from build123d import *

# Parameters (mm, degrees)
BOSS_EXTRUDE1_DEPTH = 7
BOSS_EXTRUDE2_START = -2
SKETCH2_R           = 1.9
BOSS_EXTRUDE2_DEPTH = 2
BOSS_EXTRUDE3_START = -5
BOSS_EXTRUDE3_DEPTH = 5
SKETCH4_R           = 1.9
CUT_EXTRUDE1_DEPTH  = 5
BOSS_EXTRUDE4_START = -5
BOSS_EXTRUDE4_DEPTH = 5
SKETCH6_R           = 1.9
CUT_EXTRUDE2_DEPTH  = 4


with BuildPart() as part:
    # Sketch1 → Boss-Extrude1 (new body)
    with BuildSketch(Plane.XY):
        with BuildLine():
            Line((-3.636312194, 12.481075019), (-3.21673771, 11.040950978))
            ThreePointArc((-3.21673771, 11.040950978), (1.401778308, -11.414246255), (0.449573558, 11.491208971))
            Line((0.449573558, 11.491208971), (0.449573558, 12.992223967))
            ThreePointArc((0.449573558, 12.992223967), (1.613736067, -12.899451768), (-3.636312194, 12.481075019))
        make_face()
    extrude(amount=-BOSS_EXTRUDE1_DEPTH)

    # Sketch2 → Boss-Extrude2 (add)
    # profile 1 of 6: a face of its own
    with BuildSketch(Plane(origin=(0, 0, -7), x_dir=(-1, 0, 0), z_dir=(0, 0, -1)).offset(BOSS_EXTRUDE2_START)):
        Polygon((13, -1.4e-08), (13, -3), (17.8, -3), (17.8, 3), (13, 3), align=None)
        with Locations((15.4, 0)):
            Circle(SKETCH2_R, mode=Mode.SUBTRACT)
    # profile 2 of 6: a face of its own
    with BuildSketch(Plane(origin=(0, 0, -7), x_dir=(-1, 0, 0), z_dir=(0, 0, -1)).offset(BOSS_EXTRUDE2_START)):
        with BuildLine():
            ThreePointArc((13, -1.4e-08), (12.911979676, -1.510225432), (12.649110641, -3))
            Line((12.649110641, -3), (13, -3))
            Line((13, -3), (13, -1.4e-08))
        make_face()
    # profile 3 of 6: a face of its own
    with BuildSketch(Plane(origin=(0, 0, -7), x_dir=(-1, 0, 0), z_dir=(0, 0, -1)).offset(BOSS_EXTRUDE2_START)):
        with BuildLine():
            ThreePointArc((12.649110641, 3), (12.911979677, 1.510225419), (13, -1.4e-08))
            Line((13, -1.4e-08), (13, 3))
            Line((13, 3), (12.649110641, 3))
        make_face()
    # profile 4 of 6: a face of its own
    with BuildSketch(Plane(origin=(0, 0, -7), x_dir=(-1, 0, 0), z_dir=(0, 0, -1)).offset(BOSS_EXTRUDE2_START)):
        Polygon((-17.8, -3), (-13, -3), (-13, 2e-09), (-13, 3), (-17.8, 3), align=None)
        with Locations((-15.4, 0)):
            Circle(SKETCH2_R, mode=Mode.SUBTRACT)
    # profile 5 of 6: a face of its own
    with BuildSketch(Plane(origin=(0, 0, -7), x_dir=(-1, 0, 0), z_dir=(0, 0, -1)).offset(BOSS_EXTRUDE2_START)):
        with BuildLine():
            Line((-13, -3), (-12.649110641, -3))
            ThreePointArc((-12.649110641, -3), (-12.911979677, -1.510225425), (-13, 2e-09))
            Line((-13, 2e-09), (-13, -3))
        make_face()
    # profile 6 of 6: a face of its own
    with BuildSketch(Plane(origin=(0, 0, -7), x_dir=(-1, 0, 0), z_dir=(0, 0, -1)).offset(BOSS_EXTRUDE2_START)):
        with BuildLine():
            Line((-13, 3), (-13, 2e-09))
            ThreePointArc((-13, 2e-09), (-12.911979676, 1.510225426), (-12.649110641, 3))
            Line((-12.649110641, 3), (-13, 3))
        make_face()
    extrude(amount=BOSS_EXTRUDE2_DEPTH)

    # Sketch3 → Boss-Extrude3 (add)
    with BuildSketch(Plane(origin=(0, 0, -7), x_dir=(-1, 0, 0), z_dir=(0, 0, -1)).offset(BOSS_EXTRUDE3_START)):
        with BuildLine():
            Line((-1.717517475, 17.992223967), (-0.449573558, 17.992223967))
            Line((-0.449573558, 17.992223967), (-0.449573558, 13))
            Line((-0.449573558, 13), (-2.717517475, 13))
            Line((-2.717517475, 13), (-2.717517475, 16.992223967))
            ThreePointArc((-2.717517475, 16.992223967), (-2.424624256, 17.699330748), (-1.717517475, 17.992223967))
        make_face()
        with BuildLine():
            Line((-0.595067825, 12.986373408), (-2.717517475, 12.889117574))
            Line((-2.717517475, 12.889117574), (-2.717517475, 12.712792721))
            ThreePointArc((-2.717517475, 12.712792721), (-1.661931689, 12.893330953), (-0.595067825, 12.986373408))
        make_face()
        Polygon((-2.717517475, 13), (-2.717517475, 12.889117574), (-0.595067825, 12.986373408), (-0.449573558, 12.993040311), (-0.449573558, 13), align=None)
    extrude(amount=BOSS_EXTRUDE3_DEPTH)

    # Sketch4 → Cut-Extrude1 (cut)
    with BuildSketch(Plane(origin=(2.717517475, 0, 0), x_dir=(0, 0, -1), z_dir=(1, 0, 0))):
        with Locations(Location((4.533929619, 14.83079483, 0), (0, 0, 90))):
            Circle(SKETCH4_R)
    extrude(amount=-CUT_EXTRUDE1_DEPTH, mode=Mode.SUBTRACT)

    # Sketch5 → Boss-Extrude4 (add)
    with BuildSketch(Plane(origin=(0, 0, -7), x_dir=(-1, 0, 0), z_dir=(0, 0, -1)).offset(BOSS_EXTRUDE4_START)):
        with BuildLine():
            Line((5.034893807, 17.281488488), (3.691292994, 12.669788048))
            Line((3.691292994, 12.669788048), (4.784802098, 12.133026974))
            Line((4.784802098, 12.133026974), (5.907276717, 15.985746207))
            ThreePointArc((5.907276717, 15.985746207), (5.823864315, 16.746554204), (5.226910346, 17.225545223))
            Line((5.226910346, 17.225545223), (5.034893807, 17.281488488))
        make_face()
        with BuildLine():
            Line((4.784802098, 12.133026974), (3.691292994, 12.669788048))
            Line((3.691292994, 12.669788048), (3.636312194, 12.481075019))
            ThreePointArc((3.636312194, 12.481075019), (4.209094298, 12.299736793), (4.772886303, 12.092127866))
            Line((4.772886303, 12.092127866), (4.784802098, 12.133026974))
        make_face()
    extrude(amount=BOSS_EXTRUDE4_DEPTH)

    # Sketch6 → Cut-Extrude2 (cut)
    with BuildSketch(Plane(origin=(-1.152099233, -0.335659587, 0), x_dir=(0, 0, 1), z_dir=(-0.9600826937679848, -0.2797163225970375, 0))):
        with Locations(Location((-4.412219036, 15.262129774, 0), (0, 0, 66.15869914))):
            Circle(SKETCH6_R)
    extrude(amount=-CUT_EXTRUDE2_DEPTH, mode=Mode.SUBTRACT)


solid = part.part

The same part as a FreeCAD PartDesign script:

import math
import FreeCAD as App
import Part
import Sketcher

V = App.Vector

doc = App.newDocument("Part")
body = doc.addObject("PartDesign::Body", "Body")

# Sketch on XY plane
sketch1 = body.newObject("Sketcher::SketchObject", "Sketch")
sketch1.AttachmentSupport = (doc.getObject("XY_Plane"), [""])
sketch1.MapMode = "FlatFace"
sketch1.addGeometry(Part.LineSegment(V(-3.216738, 11.040951, 0), V(-3.636312, 12.481075, 0)), False)
sketch1.addGeometry(Part.ArcOfCircle(Part.Circle(V(0, 0, 0), V(0, 0, 1), 13), math.radians(106.243275), math.radians(448.018169)), False)
sketch1.addGeometry(Part.LineSegment(V(0.449574, 12.992224, 0), V(0.449574, 11.491209, 0)), False)
sketch1.addGeometry(Part.ArcOfCircle(Part.Circle(V(0, 0, 0), V(0, 0, 1), 11.5), math.radians(106.243275), math.radians(447.759545)), False)
sketch1.addConstraint(Sketcher.Constraint("Coincident", 0, 2, 1, 1))
sketch1.addConstraint(Sketcher.Constraint("Coincident", 1, 2, 2, 1))
sketch1.addConstraint(Sketcher.Constraint("Coincident", 2, 2, 3, 2))
sketch1.addConstraint(Sketcher.Constraint("Coincident", 3, 1, 0, 1))
sketch1.addConstraint(Sketcher.Constraint("Vertical", 2))
sketch1.addConstraint(Sketcher.Constraint("Coincident", 1, 3, -1, 1))
sketch1.addConstraint(Sketcher.Constraint("Coincident", 3, 3, -1, 1))
sketch1.addConstraint(Sketcher.Constraint("Radius", 1, 13.0))
sketch1.addConstraint(Sketcher.Constraint("Radius", 3, 11.5))
sketch1.addConstraint(Sketcher.Constraint("DistanceY", 2, 2, 2, 1, 1.501015))
sketch1.addConstraint(Sketcher.Constraint("DistanceY", -1, 1, 3, 1, 11.040951))
sketch1.addConstraint(Sketcher.Constraint("DistanceY", 0, 2, 1, 2, 0.511149))
pad1 = body.newObject("PartDesign::Pad", "Pad")
pad1.Profile = sketch1
pad1.Length = 7
pad1.Reversed = True

# Sketch on XY plane
sketch2 = body.newObject("Sketcher::SketchObject", "Sketch001")
sketch2.AttachmentSupport = (doc.getObject("XY_Plane"), [""])
sketch2.MapMode = "FlatFace"
sketch2.AttachmentOffset = App.Placement(V(0, 0, -5), App.Rotation())
sketch2.addGeometry(Part.LineSegment(V(-17.8, -3, 0), V(-17.8, 3, 0)), False)
sketch2.addGeometry(Part.LineSegment(V(-17.8, 3, 0), V(-12.649111, 3, 0)), False)
sketch2.addGeometry(Part.ArcOfCircle(Part.Circle(V(0, 0, 0), V(0, 0, 1), 13), math.radians(166.657636), math.radians(180)), False)
sketch2.addGeometry(Part.ArcOfCircle(Part.Circle(V(0, 0, 0), V(0, 0, 1), 13), math.radians(-180), math.radians(-166.657636)), False)
sketch2.addGeometry(Part.LineSegment(V(-12.649111, -3, 0), V(-17.8, -3, 0)), False)
sketch2.addGeometry(Part.Circle(V(-15.4, 0, 0), V(0, 0, 1), 1.9), False)
sketch2.addGeometry(Part.LineSegment(V(17.8, -3, 0), V(12.649111, -3, 0)), False)
sketch2.addGeometry(Part.ArcOfCircle(Part.Circle(V(0, 0, 0), V(0, 0, 1), 13), math.radians(-13.342364), math.radians(0)), False)
sketch2.addGeometry(Part.ArcOfCircle(Part.Circle(V(0, 0, 0), V(0, 0, 1), 13), math.radians(0), math.radians(13.342364)), False)
sketch2.addGeometry(Part.LineSegment(V(12.649111, 3, 0), V(17.8, 3, 0)), False)
sketch2.addGeometry(Part.LineSegment(V(17.8, 3, 0), V(17.8, -3, 0)), False)
sketch2.addGeometry(Part.Circle(V(15.4, 0, 0), V(0, 0, 1), 1.9), False)
sketch2.addConstraint(Sketcher.Constraint("Coincident", 0, 2, 1, 1))
sketch2.addConstraint(Sketcher.Constraint("Coincident", 1, 2, 2, 1))
sketch2.addConstraint(Sketcher.Constraint("Tangent", 2, 2, 3, 1))
sketch2.addConstraint(Sketcher.Constraint("Coincident", 3, 2, 4, 1))
sketch2.addConstraint(Sketcher.Constraint("Coincident", 4, 2, 0, 1))
sketch2.addConstraint(Sketcher.Constraint("Coincident", 6, 2, 7, 1))
sketch2.addConstraint(Sketcher.Constraint("Tangent", 7, 2, 8, 1))
sketch2.addConstraint(Sketcher.Constraint("Coincident", 8, 2, 9, 1))
sketch2.addConstraint(Sketcher.Constraint("Coincident", 9, 2, 10, 1))
sketch2.addConstraint(Sketcher.Constraint("Coincident", 10, 2, 6, 1))
sketch2.addConstraint(Sketcher.Constraint("Vertical", 0))
sketch2.addConstraint(Sketcher.Constraint("Horizontal", 1))
sketch2.addConstraint(Sketcher.Constraint("Horizontal", 4))
sketch2.addConstraint(Sketcher.Constraint("Horizontal", 6))
sketch2.addConstraint(Sketcher.Constraint("Horizontal", 9))
sketch2.addConstraint(Sketcher.Constraint("Vertical", 10))
sketch2.addConstraint(Sketcher.Constraint("Coincident", 2, 3, -1, 1))
sketch2.addConstraint(Sketcher.Constraint("Coincident", 7, 3, -1, 1))
sketch2.addConstraint(Sketcher.Constraint("Equal", 2, 3))
sketch2.addConstraint(Sketcher.Constraint("Equal", 3, 7))
sketch2.addConstraint(Sketcher.Constraint("Equal", 7, 8))
sketch2.addConstraint(Sketcher.Constraint("Equal", 5, 11))
sketch2.addConstraint(Sketcher.Constraint("Symmetric", 5, 3, 11, 3, -1, 1))
sketch2.addConstraint(Sketcher.Constraint("Symmetric", 4, 2, 9, 2, -1, 1))
sketch2.addConstraint(Sketcher.Constraint("PointOnObject", 5, 3, -1))
sketch2.addConstraint(Sketcher.Constraint("PointOnObject", 2, 2, -1))
sketch2.addConstraint(Sketcher.Constraint("PointOnObject", 7, 2, -1))
sketch2.addConstraint(Sketcher.Constraint("Horizontal", 4, 2, 6, 2))
sketch2.addConstraint(Sketcher.Constraint("Horizontal", 1, 2, 8, 2))
sketch2.addConstraint(Sketcher.Constraint("Radius", 2, 13.0))
sketch2.addConstraint(Sketcher.Constraint("Diameter", 5, 3.8))
sketch2.addConstraint(Sketcher.Constraint("DistanceY", 0, 1, 0, 2, 6.0))
sketch2.addConstraint(Sketcher.Constraint("DistanceX", 5, 3, -1, 1, 15.4))
sketch2.addConstraint(Sketcher.Constraint("DistanceX", 0, 2, -1, 1, 17.8))
pad2 = body.newObject("PartDesign::Pad", "Pad001")
pad2.Profile = sketch2
pad2.Length = 2
pad2.Reversed = True

# Sketch on XY plane
sketch3 = body.newObject("Sketcher::SketchObject", "Sketch002")
sketch3.AttachmentSupport = (doc.getObject("XY_Plane"), [""])
sketch3.MapMode = "FlatFace"
sketch3.AttachmentOffset = App.Placement(V(0, 0, -2), App.Rotation())
sketch3.addGeometry(Part.LineSegment(V(0.449574, 17.992224, 0), V(1.717517, 17.992224, 0)), False)
sketch3.addGeometry(Part.ArcOfCircle(Part.Circle(V(1.717517, 16.992224, 0), V(0, 0, 1), 1), math.radians(0), math.radians(90)), False)
sketch3.addGeometry(Part.LineSegment(V(2.717517, 16.992224, 0), V(2.717517, 12.712793, 0)), False)
sketch3.addGeometry(Part.ArcOfCircle(Part.Circle(V(0, 0, 0), V(0, 0, 1), 13), math.radians(77.933912), math.radians(87.376401)), False)
sketch3.addGeometry(Part.LineSegment(V(0.595068, 12.986373, 0), V(0.449574, 12.99304, 0)), False)
sketch3.addGeometry(Part.LineSegment(V(0.449574, 12.99304, 0), V(0.449574, 17.992224, 0)), False)
sketch3.addConstraint(Sketcher.Constraint("Coincident", 0, 2, 1, 2))
sketch3.addConstraint(Sketcher.Constraint("Coincident", 1, 1, 2, 1))
sketch3.addConstraint(Sketcher.Constraint("Coincident", 2, 2, 3, 1))
sketch3.addConstraint(Sketcher.Constraint("Coincident", 3, 2, 4, 1))
sketch3.addConstraint(Sketcher.Constraint("Coincident", 4, 2, 5, 1))
sketch3.addConstraint(Sketcher.Constraint("Coincident", 5, 2, 0, 1))
sketch3.addConstraint(Sketcher.Constraint("Horizontal", 0))
sketch3.addConstraint(Sketcher.Constraint("Vertical", 2))
sketch3.addConstraint(Sketcher.Constraint("Vertical", 5))
sketch3.addConstraint(Sketcher.Constraint("Coincident", 3, 3, -1, 1))
sketch3.addConstraint(Sketcher.Constraint("Radius", 1, 1.0))
sketch3.addConstraint(Sketcher.Constraint("Radius", 3, 13.0))
sketch3.addConstraint(Sketcher.Constraint("DistanceX", 0, 2, 1, 1, 1.0))
sketch3.addConstraint(Sketcher.Constraint("DistanceY", 1, 1, 0, 2, 1.0))
sketch3.addConstraint(Sketcher.Constraint("DistanceY", 2, 2, 2, 1, 4.279431))
sketch3.addConstraint(Sketcher.Constraint("DistanceX", 0, 1, 0, 2, 1.267944))
sketch3.addConstraint(Sketcher.Constraint("DistanceY", 5, 1, 5, 2, 4.999184))
sketch3.addConstraint(Sketcher.Constraint("DistanceY", -1, 1, 4, 2, 12.99304))
sketch3.addConstraint(Sketcher.Constraint("DistanceX", 3, 2, 2, 2, 2.12245))
pad3 = body.newObject("PartDesign::Pad", "Pad002")
pad3.Profile = sketch3
pad3.Length = 5
pad3.Reversed = True

# Sketch on YZ plane
sketch4 = body.newObject("Sketcher::SketchObject", "Sketch003")
sketch4.AttachmentSupport = (doc.getObject("YZ_Plane"), [""])
sketch4.MapMode = "FlatFace"
sketch4.AttachmentOffset = App.Placement(V(0, 0, 2.717517), App.Rotation())
sketch4.addGeometry(Part.Circle(V(14.830795, -4.53393, 0), V(0, 0, 1), 1.9), False)
sketch4.addConstraint(Sketcher.Constraint("Diameter", 0, 3.8))
sketch4.addConstraint(Sketcher.Constraint("DistanceY", 0, 3, -1, 1, 4.53393))
sketch4.addConstraint(Sketcher.Constraint("DistanceX", -1, 1, 0, 3, 14.830795))
pocket1 = body.newObject("PartDesign::Pocket", "Pocket")
pocket1.Profile = sketch4
pocket1.Length = 5

# Sketch on XY plane
sketch5 = body.newObject("Sketcher::SketchObject", "Sketch004")
sketch5.AttachmentSupport = (doc.getObject("XY_Plane"), [""])
sketch5.MapMode = "FlatFace"
sketch5.AttachmentOffset = App.Placement(V(0, 0, -2), App.Rotation())
sketch5.addGeometry(Part.LineSegment(V(-5.034894, 17.281488, 0), V(-3.691293, 12.669788, 0)), False)
sketch5.addGeometry(Part.LineSegment(V(-3.691293, 12.669788, 0), V(-3.636312, 12.481075, 0)), False)
sketch5.addGeometry(Part.ArcOfCircle(Part.Circle(V(0, 0, 0), V(0, 0, 1), 13), math.radians(106.243275), math.radians(111.539656)), False)
sketch5.addGeometry(Part.LineSegment(V(-4.772886, 12.092128, 0), V(-4.784802, 12.133027, 0)), False)
sketch5.addGeometry(Part.LineSegment(V(-4.784802, 12.133027, 0), V(-5.907277, 15.985746, 0)), False)
sketch5.addGeometry(Part.ArcOfCircle(Part.Circle(V(-4.947194, 16.265463, 0), V(0, 0, 1), 1), math.radians(106.243275), math.radians(196.243275)), False)
sketch5.addGeometry(Part.LineSegment(V(-5.22691, 17.225545, 0), V(-5.034894, 17.281488, 0)), False)
sketch5.addConstraint(Sketcher.Constraint("Coincident", 0, 2, 1, 1))
sketch5.addConstraint(Sketcher.Constraint("Coincident", 1, 2, 2, 1))
sketch5.addConstraint(Sketcher.Constraint("Coincident", 2, 2, 3, 1))
sketch5.addConstraint(Sketcher.Constraint("Coincident", 3, 2, 4, 1))
sketch5.addConstraint(Sketcher.Constraint("Tangent", 4, 2, 5, 2))
sketch5.addConstraint(Sketcher.Constraint("Tangent", 5, 1, 6, 1))
sketch5.addConstraint(Sketcher.Constraint("Coincident", 6, 2, 0, 1))
sketch5.addConstraint(Sketcher.Constraint("Coincident", 2, 3, -1, 1))
sketch5.addConstraint(Sketcher.Constraint("Parallel", 0, 1))
sketch5.addConstraint(Sketcher.Constraint("Parallel", 1, 3))
sketch5.addConstraint(Sketcher.Constraint("Parallel", 3, 4))
sketch5.addConstraint(Sketcher.Constraint("Perpendicular", 4, 6))
sketch5.addConstraint(Sketcher.Constraint("Radius", 2, 13.0))
sketch5.addConstraint(Sketcher.Constraint("Radius", 5, 1.0))
sketch5.addConstraint(Sketcher.Constraint("Distance", 6, 0.2))
sketch5.addConstraint(Sketcher.Constraint("Distance", 3, 0.0426))
sketch5.addConstraint(Sketcher.Constraint("DistanceX", 5, 3, 0, 2, 1.255901))
sketch5.addConstraint(Sketcher.Constraint("DistanceY", 4, 2, 5, 1, 1.239799))
sketch5.addConstraint(Sketcher.Constraint("DistanceX", 5, 1, 1, 2, 1.590598))
sketch5.addConstraint(Sketcher.Constraint("DistanceY", -1, 1, 0, 2, 12.669788))
pad4 = body.newObject("PartDesign::Pad", "Pad003")
pad4.Profile = sketch5
pad4.Length = 5
pad4.Reversed = True

# Sketch on an angled plane
sketch6 = body.newObject("Sketcher::SketchObject", "Sketch005")
sketch6.Placement = App.Placement(V(-1.152099, -0.33566, 0), App.Rotation(V(0, 0, 1), V(-0.279716323, 0.960082694, 0), V(-0.960082694, -0.279716323, 0), "ZXY"))
sketch6.addGeometry(Part.Circle(V(-4.412219, 15.26213, 0), V(0, 0, 1), 1.9), False)
sketch6.addConstraint(Sketcher.Constraint("Diameter", 0, 3.8))
sketch6.addConstraint(Sketcher.Constraint("DistanceX", 0, 3, -1, 1, 4.412219))
sketch6.addConstraint(Sketcher.Constraint("DistanceY", -1, 1, 0, 3, 15.26213))
pocket2 = body.newObject("PartDesign::Pocket", "Pocket001")
pocket2.Profile = sketch6
pocket2.Length = 4

doc.recompute()
